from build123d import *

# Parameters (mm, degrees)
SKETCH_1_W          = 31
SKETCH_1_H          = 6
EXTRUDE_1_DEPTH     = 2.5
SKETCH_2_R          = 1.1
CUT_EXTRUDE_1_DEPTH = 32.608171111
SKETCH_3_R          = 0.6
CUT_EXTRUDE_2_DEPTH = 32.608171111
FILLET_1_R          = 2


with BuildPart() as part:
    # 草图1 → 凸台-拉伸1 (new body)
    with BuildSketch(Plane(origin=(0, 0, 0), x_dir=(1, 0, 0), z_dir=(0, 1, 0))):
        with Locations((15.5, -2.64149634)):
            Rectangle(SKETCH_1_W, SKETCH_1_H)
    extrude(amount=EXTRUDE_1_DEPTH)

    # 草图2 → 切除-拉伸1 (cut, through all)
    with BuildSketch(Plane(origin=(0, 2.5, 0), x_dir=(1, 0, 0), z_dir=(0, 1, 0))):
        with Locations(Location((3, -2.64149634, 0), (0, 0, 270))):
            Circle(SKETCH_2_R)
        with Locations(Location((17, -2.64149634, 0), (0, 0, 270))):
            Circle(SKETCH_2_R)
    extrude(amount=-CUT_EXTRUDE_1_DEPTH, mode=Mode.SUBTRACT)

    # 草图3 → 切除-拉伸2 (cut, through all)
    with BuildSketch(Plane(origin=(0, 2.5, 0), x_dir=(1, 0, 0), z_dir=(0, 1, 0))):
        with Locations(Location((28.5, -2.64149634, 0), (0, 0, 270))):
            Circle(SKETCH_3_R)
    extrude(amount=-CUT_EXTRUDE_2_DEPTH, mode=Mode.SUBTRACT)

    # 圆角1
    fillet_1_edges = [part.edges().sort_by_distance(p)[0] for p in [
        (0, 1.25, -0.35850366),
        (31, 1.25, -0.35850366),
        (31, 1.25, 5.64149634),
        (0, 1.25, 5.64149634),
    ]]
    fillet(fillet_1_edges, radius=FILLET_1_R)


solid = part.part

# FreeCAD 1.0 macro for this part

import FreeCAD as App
import Part
import Sketcher
from FreeCAD import Vector


def edges_at(feature, points):
    """Names of the edges that pass closest to the given points."""
    edges = feature.Shape.Edges
    near = lambda p: min(range(len(edges)), key=lambda i: edges[i].distToShape(Part.Vertex(*p))[0])
    return sorted({f"Edge{near(p) + 1}" for p in points})

doc = App.newDocument("Part")
body = doc.addObject("PartDesign::Body", "Body")

# Sketch on XZ plane
sketch1 = body.newObject("Sketcher::SketchObject", "Sketch")
sketch1.AttachmentSupport = (doc.getObject("XZ_Plane"), [""])
sketch1.MapMode = "FlatFace"
sketch1.addGeometry(Part.LineSegment(Vector(0, 0, 0), Vector(0, 6, 0)), False)
sketch1.addGeometry(Part.LineSegment(Vector(0, 6, 0), Vector(31, 6, 0)), False)
sketch1.addGeometry(Part.LineSegment(Vector(31, 6, 0), Vector(31, 0, 0)), False)
sketch1.addGeometry(Part.LineSegment(Vector(31, 0, 0), Vector(0, 0, 0)), False)
sketch1.addConstraint(Sketcher.Constraint("Coincident", 0, 2, 1, 1))
sketch1.addConstraint(Sketcher.Constraint("Coincident", 1, 2, 2, 1))
sketch1.addConstraint(Sketcher.Constraint("Coincident", 2, 2, 3, 1))
sketch1.addConstraint(Sketcher.Constraint("Coincident", 3, 2, 0, 1))
sketch1.addConstraint(Sketcher.Constraint("Vertical", 0))
sketch1.addConstraint(Sketcher.Constraint("Horizontal", 1))
sketch1.addConstraint(Sketcher.Constraint("Vertical", 2))
sketch1.addConstraint(Sketcher.Constraint("Horizontal", 3))
sketch1.addConstraint(Sketcher.Constraint("PointOnObject", 0, 2, -2))
sketch1.addConstraint(Sketcher.Constraint("DistanceX", 1, 1, 1, 2, 31.0))
sketch1.addConstraint(Sketcher.Constraint("DistanceY", 0, 1, 0, 2, 6.0))
sketch1.addConstraint(Sketcher.Constraint("DistanceY", -1, 1, 0, 2, 5.641496))
pad1 = body.newObject("PartDesign::Pad", "Pad")
pad1.Profile = sketch1
pad1.Length = 2.5
pad1.Reversed = True

# Sketch on XZ plane
sketch2 = body.newObject("Sketcher::SketchObject", "Sketch001")
sketch2.AttachmentSupport = (doc.getObject("XZ_Plane"), [""])
sketch2.MapMode = "FlatFace"
sketch2.AttachmentOffset = App.Placement(Vector(0, 0, -2.5), App.Rotation())
sketch2.addGeometry(Part.Circle(Vector(3, 2.6, 0), Vector(0, 0, 1), 1.1), False)
sketch2.addGeometry(Part.Circle(Vector(17, 2.6, 0), Vector(0, 0, 1), 1.1), False)
sketch2.addConstraint(Sketcher.Constraint("Equal", 0, 1))
sketch2.addConstraint(Sketcher.Constraint("Horizontal", 0, 3, 1, 3))
sketch2.addConstraint(Sketcher.Constraint("Diameter", 0, 2.2))
sketch2.addConstraint(Sketcher.Constraint("DistanceX", -1, 1, 0, 3, 3.0))
sketch2.addConstraint(Sketcher.Constraint("DistanceX", -1, 1, 1, 3, 17.0))
sketch2.addConstraint(Sketcher.Constraint("DistanceY", -1, 1, 0, 3, 2.641496))
pocket1 = body.newObject("PartDesign::Pocket", "Pocket")
pocket1.Profile = sketch2
pocket1.Type = "ThroughAll"
pocket1.Reversed = True

# Sketch on XZ plane
sketch3 = body.newObject("Sketcher::SketchObject", "Sketch002")
sketch3.AttachmentSupport = (doc.getObject("XZ_Plane"), [""])
sketch3.MapMode = "FlatFace"
sketch3.AttachmentOffset = App.Placement(Vector(0, 0, -2.5), App.Rotation())
sketch3.addGeometry(Part.Circle(Vector(28.5, 2.6, 0), Vector(0, 0, 1), 0.6), False)
sketch3.addConstraint(Sketcher.Constraint("Diameter", 0, 1.2))
sketch3.addConstraint(Sketcher.Constraint("DistanceX", -1, 1, 0, 3, 28.5))
sketch3.addConstraint(Sketcher.Constraint("DistanceY", -1, 1, 0, 3, 2.641496))
pocket2 = body.newObject("PartDesign::Pocket", "Pocket001")
pocket2.Profile = sketch3
pocket2.Type = "ThroughAll"
pocket2.Reversed = True
doc.recompute()

fillet = body.newObject("PartDesign::Fillet", "Fillet")
fillet.Base = (pocket2, edges_at(pocket2, [
    (0, 1.25, -0.359),
    (31, 1.25, -0.359),
    (31, 1.25, 5.641),
    (0, 1.25, 5.641),
]))
fillet.Radius = 2

doc.recompute()
